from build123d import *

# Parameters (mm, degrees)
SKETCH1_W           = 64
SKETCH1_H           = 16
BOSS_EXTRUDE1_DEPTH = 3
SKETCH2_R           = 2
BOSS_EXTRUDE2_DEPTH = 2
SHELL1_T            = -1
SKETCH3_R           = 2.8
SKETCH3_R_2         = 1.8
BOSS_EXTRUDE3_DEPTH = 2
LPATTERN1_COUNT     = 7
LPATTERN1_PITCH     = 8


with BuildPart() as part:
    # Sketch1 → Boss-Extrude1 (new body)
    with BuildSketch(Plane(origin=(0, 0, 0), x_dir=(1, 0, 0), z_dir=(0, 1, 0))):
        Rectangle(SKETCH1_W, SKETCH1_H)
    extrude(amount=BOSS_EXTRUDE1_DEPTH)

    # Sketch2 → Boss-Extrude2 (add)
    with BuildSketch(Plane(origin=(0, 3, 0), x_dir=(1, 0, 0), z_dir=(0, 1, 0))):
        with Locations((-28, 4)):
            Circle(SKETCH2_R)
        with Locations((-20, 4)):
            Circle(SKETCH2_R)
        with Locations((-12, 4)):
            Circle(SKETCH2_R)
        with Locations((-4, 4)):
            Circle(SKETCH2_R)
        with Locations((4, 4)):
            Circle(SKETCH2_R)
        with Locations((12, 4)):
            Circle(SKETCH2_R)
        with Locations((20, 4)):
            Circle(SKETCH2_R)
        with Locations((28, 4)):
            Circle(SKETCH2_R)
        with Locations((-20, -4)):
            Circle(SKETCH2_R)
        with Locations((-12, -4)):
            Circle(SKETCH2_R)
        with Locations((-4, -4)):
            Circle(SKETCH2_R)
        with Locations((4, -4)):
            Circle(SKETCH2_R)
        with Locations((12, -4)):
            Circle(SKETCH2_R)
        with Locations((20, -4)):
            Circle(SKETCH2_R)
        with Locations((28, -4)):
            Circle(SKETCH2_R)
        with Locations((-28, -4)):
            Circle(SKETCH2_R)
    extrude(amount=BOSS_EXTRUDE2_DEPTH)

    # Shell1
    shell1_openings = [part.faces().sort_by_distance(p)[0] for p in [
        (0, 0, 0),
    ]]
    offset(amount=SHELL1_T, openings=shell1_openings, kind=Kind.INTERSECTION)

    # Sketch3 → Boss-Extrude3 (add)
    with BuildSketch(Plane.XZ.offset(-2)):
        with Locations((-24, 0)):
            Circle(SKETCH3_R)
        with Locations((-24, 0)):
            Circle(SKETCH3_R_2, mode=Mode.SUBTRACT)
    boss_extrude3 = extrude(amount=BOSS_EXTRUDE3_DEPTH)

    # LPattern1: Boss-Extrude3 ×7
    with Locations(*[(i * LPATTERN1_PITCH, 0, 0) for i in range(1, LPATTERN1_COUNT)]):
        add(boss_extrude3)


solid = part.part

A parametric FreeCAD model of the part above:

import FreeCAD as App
import Part
import Sketcher
from FreeCAD import Vector


def faces_at(feature, points):
    """Names of the faces that lie closest to the given points."""
    faces = feature.Shape.Faces
    near = lambda p: min(range(len(faces)), key=lambda i: faces[i].distToShape(Part.Vertex(*p))[0])
    return sorted({f"Face{near(p) + 1}" for p in points})

doc = App.newDocument("Part")
body = doc.addObject("PartDesign::Body", "Body")

# Sketch on XZ plane
sketch1 = body.newObject("Sketcher::SketchObject", "Sketch")
sketch1.AttachmentSupport = (doc.getObject("XZ_Plane"), [""])
sketch1.MapMode = "FlatFace"
sketch1.addGeometry([
    Part.LineSegment(Vector(-32, -8, 0), Vector(-32, 8, 0)),
    Part.LineSegment(Vector(-32, 8, 0), Vector(32, 8, 0)),
    Part.LineSegment(Vector(32, 8, 0), Vector(32, -8, 0)),
    Part.LineSegment(Vector(32, -8, 0), Vector(-32, -8, 0)),
], False)
sketch1.addConstraint([
    Sketcher.Constraint("Coincident", 0, 2, 1, 1),
    Sketcher.Constraint("Coincident", 1, 2, 2, 1),
    Sketcher.Constraint("Coincident", 2, 2, 3, 1),
    Sketcher.Constraint("Coincident", 3, 2, 0, 1),
    Sketcher.Constraint("Vertical", 0),
    Sketcher.Constraint("Horizontal", 1),
    Sketcher.Constraint("Vertical", 2),
    Sketcher.Constraint("Horizontal", 3),
    Sketcher.Constraint("Symmetric", 0, 2, 2, 2, -1, 1),
    Sketcher.Constraint("DistanceX", 1, 1, 1, 2, 64.0),
    Sketcher.Constraint("DistanceY", 0, 1, 0, 2, 16.0),
])
pad1 = body.newObject("PartDesign::Pad", "Pad")
pad1.Profile = sketch1
pad1.Length = 3
pad1.Reversed = True

# Sketch on XZ plane
sketch2 = body.newObject("Sketcher::SketchObject", "Sketch001")
sketch2.AttachmentSupport = (doc.getObject("XZ_Plane"), [""])
sketch2.MapMode = "FlatFace"
sketch2.AttachmentOffset = App.Placement(Vector(0, 0, -3), App.Rotation())
sketch2.addGeometry([
    Part.Circle(Vector(-28, -4, 0), Vector(0, 0, 1), 2),  # 0
    Part.Circle(Vector(-20, -4, 0), Vector(0, 0, 1), 2),  # 1
    Part.Circle(Vector(-12, -4, 0), Vector(0, 0, 1), 2),  # 2
    Part.Circle(Vector(-4, -4, 0), Vector(0, 0, 1), 2),  # 3
    Part.Circle(Vector(4, -4, 0), Vector(0, 0, 1), 2),  # 4
    Part.Circle(Vector(12, -4, 0), Vector(0, 0, 1), 2),  # 5
    Part.Circle(Vector(20, -4, 0), Vector(0, 0, 1), 2),  # 6
    Part.Circle(Vector(28, -4, 0), Vector(0, 0, 1), 2),  # 7
    Part.Circle(Vector(-20, 4, 0), Vector(0, 0, 1), 2),  # 8
    Part.Circle(Vector(-12, 4, 0), Vector(0, 0, 1), 2),  # 9
    Part.Circle(Vector(-4, 4, 0), Vector(0, 0, 1), 2),  # 10
    Part.Circle(Vector(4, 4, 0), Vector(0, 0, 1), 2),  # 11
    Part.Circle(Vector(12, 4, 0), Vector(0, 0, 1), 2),  # 12
    Part.Circle(Vector(20, 4, 0), Vector(0, 0, 1), 2),  # 13
    Part.Circle(Vector(28, 4, 0), Vector(0, 0, 1), 2),  # 14
    Part.Circle(Vector(-28, 4, 0), Vector(0, 0, 1), 2),  # 15
], False)
sketch2.addConstraint([
    Sketcher.Constraint("Equal", 0, 1),
    Sketcher.Constraint("Equal", 1, 2),
    Sketcher.Constraint("Equal", 2, 3),
    Sketcher.Constraint("Equal", 3, 4),
    Sketcher.Constraint("Equal", 4, 5),
    Sketcher.Constraint("Equal", 5, 6),
    Sketcher.Constraint("Equal", 6, 7),
    Sketcher.Constraint("Equal", 7, 8),
    Sketcher.Constraint("Equal", 8, 9),
    Sketcher.Constraint("Equal", 9, 10),
    Sketcher.Constraint("Equal", 10, 11),
    Sketcher.Constraint("Equal", 11, 12),
    Sketcher.Constraint("Equal", 12, 13),
    Sketcher.Constraint("Equal", 13, 14),
    Sketcher.Constraint("Equal", 14, 15),
    Sketcher.Constraint("Symmetric", 6, 3, 8, 3, -1, 1),
    Sketcher.Constraint("Symmetric", 5, 3, 9, 3, -1, 1),
    Sketcher.Constraint("Symmetric", 4, 3, 10, 3, -1, 1),
    Sketcher.Constraint("Symmetric", 3, 3, 11, 3, -1, 1),
    Sketcher.Constraint("Symmetric", 2, 3, 12, 3, -1, 1),
    Sketcher.Constraint("Symmetric", 1, 3, 13, 3, -1, 1),
    Sketcher.Constraint("Symmetric", 0, 3, 14, 3, -1, 1),
    Sketcher.Constraint("Symmetric", 7, 3, 15, 3, -1, 1),
    Sketcher.Constraint("Symmetric", 3, 3, 4, 3, -2),
    Sketcher.Constraint("Symmetric", 2, 3, 5, 3, -2),
    Sketcher.Constraint("Symmetric", 1, 3, 6, 3, -2),
    Sketcher.Constraint("Symmetric", 0, 3, 7, 3, -2),
    Sketcher.Constraint("Horizontal", 0, 3, 1, 3),
    Sketcher.Constraint("Horizontal", 1, 3, 2, 3),
    Sketcher.Constraint("Horizontal", 2, 3, 3, 3),
    Sketcher.Constraint("Diameter", 0, 4.0),
    Sketcher.Constraint("DistanceX", 0, 3, -1, 1, 28.0),
    Sketcher.Constraint("DistanceY", 0, 3, -1, 1, 4.0),
    Sketcher.Constraint("DistanceX", 1, 3, -1, 1, 20.0),
    Sketcher.Constraint("DistanceX", 2, 3, -1, 1, 12.0),
    Sketcher.Constraint("DistanceX", 3, 3, -1, 1, 4.0),
])
pad2 = body.newObject("PartDesign::Pad", "Pad001")
pad2.Profile = sketch2
pad2.Length = 2
pad2.Reversed = True
doc.recompute()

thickness = body.newObject("PartDesign::Thickness", "Thickness")
thickness.Base = (pad2, faces_at(pad2, [(0, 0, 0)]))
thickness.Value = 1
thickness.Reversed = True
thickness.Join = "Intersection"

# Sketch on XZ plane
sketch3 = body.newObject("Sketcher::SketchObject", "Sketch002")
sketch3.AttachmentSupport = (doc.getObject("XZ_Plane"), [""])
sketch3.MapMode = "FlatFace"
sketch3.AttachmentOffset = App.Placement(Vector(0, 0, -2), App.Rotation())
sketch3.addGeometry([
    Part.Circle(Vector(-24, 0, 0), Vector(0, 0, 1), 2.8),
    Part.Circle(Vector(-24, 0, 0), Vector(0, 0, 1), 1.8),
], False)
sketch3.addConstraint([
    Sketcher.Constraint("Coincident", 1, 3, 0, 3),
    Sketcher.Constraint("PointOnObject", 0, 3, -1),
    Sketcher.Constraint("Diameter", 0, 5.6),
    Sketcher.Constraint("Diameter", 1, 3.6),
    Sketcher.Constraint("DistanceX", 0, 3, -1, 1, 24.0),
])
pad3 = body.newObject("PartDesign::Pad", "Pad002")
pad3.Profile = sketch3
pad3.Length = 2
doc.recompute()

linearpattern = body.newObject("PartDesign::LinearPattern", "LinearPattern")
linearpattern.Originals = [pad3]
linearpattern.Direction = (doc.getObject("X_Axis"), [""])
linearpattern.Mode = "offset"
linearpattern.Offset = 8
linearpattern.Occurrences = 7
body.Tip = linearpattern

doc.recompute()
